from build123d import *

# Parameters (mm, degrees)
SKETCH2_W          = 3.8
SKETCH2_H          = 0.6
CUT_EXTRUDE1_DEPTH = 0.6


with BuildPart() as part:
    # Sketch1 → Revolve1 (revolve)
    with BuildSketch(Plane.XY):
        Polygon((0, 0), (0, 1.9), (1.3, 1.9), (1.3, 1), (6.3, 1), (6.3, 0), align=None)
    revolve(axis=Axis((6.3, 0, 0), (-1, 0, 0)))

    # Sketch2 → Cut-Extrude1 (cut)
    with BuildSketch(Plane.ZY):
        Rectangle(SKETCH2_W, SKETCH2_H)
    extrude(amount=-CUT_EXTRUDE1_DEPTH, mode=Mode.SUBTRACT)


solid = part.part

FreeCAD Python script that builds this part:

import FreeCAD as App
import Part
import Sketcher
Q = App.Units.Quantity


def add_polygon(sketch, points):
    """Adds a closed chain of lines whose ends are joined by coincident constraints."""
    first, n = sketch.GeometryCount, len(points)
    for a, b in zip(points, points[1:] + points[:1]):
        sketch.addGeometry(Part.LineSegment(App.Vector(*a, 0), App.Vector(*b, 0)), False)
    for i in range(n):
        sketch.addConstraint(Sketcher.Constraint("Coincident", first + i, 2, first + (i + 1) % n, 1))

doc = App.newDocument("Part")
params = doc.addObject("Spreadsheet::Sheet", "Params")
for row, (alias, value) in enumerate([
    ("sketch1_width", "5 mm"),
    ("sketch1_height", "1 mm"),
    ("sketch1_width2", "6.3 mm"),
    ("sketch1_height2", "1.9 mm"),
    ("revolution_angle", "360 deg"),
    ("sketch2_width", "0.6 mm"),
    ("sketch2_height", "3.8 mm"),
    ("pocket1_length", "0.6 mm"),
], start=1):
    params.set(f"A{row}", alias)
    params.set(f"B{row}", "=" + value)
    params.setAlias(f"B{row}", alias)

body = doc.addObject("PartDesign::Body", "Body")

# Sketch on XY plane
sketch1 = body.newObject("Sketcher::SketchObject", "Sketch")
sketch1.AttachmentSupport = (doc.getObject("XY_Plane"), [""])
sketch1.MapMode = "FlatFace"
add_polygon(sketch1, [(0, 1.9), (0, 0), (6.3, 0), (6.3, 1), (1.3, 1), (1.3, 1.9)])  # lines 0-5
sketch1.addConstraint(Sketcher.Constraint("Vertical", 0))
sketch1.addConstraint(Sketcher.Constraint("Horizontal", 1))
sketch1.addConstraint(Sketcher.Constraint("Vertical", 2))
sketch1.addConstraint(Sketcher.Constraint("Horizontal", 3))
sketch1.addConstraint(Sketcher.Constraint("Vertical", 4))
sketch1.addConstraint(Sketcher.Constraint("Horizontal", 5))
sketch1.addConstraint(Sketcher.Constraint("Coincident", 0, 2, -1, 1))
sketch1.addConstraint(Sketcher.Constraint("DistanceX", 3, 2, 3, 1, Q("5 mm")))
sketch1.addConstraint(Sketcher.Constraint("DistanceY", 2, 1, 2, 2, Q("1 mm")))
sketch1.addConstraint(Sketcher.Constraint("DistanceX", 1, 1, 1, 2, Q("6.3 mm")))
sketch1.addConstraint(Sketcher.Constraint("DistanceY", 0, 2, 0, 1, Q("1.9 mm")))
sketch1.setExpression("Constraints[13]", "Params.sketch1_width")
sketch1.setExpression("Constraints[14]", "Params.sketch1_height")
sketch1.setExpression("Constraints[15]", "Params.sketch1_width2")
sketch1.setExpression("Constraints[16]", "Params.sketch1_height2")
revolution = body.newObject("PartDesign::Revolution", "Revolution")
revolution.Profile = sketch1
revolution.ReferenceAxis = (sketch1, ["H_Axis"])
revolution.setExpression("Angle", "Params.revolution_angle")

# Sketch on YZ plane
sketch2 = body.newObject("Sketcher::SketchObject", "Sketch001")
sketch2.AttachmentSupport = (doc.getObject("YZ_Plane"), [""])
sketch2.MapMode = "FlatFace"
add_polygon(sketch2, [(0.3, -1.9), (-0.3, -1.9), (-0.3, 1.9), (0.3, 1.9)])  # lines 0-3
sketch2.addConstraint(Sketcher.Constraint("Horizontal", 0))
sketch2.addConstraint(Sketcher.Constraint("Vertical", 1))
sketch2.addConstraint(Sketcher.Constraint("Horizontal", 2))
sketch2.addConstraint(Sketcher.Constraint("Vertical", 3))
sketch2.addConstraint(Sketcher.Constraint("Symmetric", 0, 2, 2, 2, -1, 1))
sketch2.addConstraint(Sketcher.Constraint("DistanceX", 0, 2, 0, 1, Q("0.6 mm")))
sketch2.addConstraint(Sketcher.Constraint("DistanceY", 1, 1, 1, 2, Q("3.8 mm")))
sketch2.setExpression("Constraints[9]", "Params.sketch2_width")
sketch2.setExpression("Constraints[10]", "Params.sketch2_height")
pocket1 = body.newObject("PartDesign::Pocket", "Pocket")
pocket1.Profile = sketch2
pocket1.setExpression("Length", "Params.pocket1_length")
pocket1.Reversed = True

doc.recompute()
